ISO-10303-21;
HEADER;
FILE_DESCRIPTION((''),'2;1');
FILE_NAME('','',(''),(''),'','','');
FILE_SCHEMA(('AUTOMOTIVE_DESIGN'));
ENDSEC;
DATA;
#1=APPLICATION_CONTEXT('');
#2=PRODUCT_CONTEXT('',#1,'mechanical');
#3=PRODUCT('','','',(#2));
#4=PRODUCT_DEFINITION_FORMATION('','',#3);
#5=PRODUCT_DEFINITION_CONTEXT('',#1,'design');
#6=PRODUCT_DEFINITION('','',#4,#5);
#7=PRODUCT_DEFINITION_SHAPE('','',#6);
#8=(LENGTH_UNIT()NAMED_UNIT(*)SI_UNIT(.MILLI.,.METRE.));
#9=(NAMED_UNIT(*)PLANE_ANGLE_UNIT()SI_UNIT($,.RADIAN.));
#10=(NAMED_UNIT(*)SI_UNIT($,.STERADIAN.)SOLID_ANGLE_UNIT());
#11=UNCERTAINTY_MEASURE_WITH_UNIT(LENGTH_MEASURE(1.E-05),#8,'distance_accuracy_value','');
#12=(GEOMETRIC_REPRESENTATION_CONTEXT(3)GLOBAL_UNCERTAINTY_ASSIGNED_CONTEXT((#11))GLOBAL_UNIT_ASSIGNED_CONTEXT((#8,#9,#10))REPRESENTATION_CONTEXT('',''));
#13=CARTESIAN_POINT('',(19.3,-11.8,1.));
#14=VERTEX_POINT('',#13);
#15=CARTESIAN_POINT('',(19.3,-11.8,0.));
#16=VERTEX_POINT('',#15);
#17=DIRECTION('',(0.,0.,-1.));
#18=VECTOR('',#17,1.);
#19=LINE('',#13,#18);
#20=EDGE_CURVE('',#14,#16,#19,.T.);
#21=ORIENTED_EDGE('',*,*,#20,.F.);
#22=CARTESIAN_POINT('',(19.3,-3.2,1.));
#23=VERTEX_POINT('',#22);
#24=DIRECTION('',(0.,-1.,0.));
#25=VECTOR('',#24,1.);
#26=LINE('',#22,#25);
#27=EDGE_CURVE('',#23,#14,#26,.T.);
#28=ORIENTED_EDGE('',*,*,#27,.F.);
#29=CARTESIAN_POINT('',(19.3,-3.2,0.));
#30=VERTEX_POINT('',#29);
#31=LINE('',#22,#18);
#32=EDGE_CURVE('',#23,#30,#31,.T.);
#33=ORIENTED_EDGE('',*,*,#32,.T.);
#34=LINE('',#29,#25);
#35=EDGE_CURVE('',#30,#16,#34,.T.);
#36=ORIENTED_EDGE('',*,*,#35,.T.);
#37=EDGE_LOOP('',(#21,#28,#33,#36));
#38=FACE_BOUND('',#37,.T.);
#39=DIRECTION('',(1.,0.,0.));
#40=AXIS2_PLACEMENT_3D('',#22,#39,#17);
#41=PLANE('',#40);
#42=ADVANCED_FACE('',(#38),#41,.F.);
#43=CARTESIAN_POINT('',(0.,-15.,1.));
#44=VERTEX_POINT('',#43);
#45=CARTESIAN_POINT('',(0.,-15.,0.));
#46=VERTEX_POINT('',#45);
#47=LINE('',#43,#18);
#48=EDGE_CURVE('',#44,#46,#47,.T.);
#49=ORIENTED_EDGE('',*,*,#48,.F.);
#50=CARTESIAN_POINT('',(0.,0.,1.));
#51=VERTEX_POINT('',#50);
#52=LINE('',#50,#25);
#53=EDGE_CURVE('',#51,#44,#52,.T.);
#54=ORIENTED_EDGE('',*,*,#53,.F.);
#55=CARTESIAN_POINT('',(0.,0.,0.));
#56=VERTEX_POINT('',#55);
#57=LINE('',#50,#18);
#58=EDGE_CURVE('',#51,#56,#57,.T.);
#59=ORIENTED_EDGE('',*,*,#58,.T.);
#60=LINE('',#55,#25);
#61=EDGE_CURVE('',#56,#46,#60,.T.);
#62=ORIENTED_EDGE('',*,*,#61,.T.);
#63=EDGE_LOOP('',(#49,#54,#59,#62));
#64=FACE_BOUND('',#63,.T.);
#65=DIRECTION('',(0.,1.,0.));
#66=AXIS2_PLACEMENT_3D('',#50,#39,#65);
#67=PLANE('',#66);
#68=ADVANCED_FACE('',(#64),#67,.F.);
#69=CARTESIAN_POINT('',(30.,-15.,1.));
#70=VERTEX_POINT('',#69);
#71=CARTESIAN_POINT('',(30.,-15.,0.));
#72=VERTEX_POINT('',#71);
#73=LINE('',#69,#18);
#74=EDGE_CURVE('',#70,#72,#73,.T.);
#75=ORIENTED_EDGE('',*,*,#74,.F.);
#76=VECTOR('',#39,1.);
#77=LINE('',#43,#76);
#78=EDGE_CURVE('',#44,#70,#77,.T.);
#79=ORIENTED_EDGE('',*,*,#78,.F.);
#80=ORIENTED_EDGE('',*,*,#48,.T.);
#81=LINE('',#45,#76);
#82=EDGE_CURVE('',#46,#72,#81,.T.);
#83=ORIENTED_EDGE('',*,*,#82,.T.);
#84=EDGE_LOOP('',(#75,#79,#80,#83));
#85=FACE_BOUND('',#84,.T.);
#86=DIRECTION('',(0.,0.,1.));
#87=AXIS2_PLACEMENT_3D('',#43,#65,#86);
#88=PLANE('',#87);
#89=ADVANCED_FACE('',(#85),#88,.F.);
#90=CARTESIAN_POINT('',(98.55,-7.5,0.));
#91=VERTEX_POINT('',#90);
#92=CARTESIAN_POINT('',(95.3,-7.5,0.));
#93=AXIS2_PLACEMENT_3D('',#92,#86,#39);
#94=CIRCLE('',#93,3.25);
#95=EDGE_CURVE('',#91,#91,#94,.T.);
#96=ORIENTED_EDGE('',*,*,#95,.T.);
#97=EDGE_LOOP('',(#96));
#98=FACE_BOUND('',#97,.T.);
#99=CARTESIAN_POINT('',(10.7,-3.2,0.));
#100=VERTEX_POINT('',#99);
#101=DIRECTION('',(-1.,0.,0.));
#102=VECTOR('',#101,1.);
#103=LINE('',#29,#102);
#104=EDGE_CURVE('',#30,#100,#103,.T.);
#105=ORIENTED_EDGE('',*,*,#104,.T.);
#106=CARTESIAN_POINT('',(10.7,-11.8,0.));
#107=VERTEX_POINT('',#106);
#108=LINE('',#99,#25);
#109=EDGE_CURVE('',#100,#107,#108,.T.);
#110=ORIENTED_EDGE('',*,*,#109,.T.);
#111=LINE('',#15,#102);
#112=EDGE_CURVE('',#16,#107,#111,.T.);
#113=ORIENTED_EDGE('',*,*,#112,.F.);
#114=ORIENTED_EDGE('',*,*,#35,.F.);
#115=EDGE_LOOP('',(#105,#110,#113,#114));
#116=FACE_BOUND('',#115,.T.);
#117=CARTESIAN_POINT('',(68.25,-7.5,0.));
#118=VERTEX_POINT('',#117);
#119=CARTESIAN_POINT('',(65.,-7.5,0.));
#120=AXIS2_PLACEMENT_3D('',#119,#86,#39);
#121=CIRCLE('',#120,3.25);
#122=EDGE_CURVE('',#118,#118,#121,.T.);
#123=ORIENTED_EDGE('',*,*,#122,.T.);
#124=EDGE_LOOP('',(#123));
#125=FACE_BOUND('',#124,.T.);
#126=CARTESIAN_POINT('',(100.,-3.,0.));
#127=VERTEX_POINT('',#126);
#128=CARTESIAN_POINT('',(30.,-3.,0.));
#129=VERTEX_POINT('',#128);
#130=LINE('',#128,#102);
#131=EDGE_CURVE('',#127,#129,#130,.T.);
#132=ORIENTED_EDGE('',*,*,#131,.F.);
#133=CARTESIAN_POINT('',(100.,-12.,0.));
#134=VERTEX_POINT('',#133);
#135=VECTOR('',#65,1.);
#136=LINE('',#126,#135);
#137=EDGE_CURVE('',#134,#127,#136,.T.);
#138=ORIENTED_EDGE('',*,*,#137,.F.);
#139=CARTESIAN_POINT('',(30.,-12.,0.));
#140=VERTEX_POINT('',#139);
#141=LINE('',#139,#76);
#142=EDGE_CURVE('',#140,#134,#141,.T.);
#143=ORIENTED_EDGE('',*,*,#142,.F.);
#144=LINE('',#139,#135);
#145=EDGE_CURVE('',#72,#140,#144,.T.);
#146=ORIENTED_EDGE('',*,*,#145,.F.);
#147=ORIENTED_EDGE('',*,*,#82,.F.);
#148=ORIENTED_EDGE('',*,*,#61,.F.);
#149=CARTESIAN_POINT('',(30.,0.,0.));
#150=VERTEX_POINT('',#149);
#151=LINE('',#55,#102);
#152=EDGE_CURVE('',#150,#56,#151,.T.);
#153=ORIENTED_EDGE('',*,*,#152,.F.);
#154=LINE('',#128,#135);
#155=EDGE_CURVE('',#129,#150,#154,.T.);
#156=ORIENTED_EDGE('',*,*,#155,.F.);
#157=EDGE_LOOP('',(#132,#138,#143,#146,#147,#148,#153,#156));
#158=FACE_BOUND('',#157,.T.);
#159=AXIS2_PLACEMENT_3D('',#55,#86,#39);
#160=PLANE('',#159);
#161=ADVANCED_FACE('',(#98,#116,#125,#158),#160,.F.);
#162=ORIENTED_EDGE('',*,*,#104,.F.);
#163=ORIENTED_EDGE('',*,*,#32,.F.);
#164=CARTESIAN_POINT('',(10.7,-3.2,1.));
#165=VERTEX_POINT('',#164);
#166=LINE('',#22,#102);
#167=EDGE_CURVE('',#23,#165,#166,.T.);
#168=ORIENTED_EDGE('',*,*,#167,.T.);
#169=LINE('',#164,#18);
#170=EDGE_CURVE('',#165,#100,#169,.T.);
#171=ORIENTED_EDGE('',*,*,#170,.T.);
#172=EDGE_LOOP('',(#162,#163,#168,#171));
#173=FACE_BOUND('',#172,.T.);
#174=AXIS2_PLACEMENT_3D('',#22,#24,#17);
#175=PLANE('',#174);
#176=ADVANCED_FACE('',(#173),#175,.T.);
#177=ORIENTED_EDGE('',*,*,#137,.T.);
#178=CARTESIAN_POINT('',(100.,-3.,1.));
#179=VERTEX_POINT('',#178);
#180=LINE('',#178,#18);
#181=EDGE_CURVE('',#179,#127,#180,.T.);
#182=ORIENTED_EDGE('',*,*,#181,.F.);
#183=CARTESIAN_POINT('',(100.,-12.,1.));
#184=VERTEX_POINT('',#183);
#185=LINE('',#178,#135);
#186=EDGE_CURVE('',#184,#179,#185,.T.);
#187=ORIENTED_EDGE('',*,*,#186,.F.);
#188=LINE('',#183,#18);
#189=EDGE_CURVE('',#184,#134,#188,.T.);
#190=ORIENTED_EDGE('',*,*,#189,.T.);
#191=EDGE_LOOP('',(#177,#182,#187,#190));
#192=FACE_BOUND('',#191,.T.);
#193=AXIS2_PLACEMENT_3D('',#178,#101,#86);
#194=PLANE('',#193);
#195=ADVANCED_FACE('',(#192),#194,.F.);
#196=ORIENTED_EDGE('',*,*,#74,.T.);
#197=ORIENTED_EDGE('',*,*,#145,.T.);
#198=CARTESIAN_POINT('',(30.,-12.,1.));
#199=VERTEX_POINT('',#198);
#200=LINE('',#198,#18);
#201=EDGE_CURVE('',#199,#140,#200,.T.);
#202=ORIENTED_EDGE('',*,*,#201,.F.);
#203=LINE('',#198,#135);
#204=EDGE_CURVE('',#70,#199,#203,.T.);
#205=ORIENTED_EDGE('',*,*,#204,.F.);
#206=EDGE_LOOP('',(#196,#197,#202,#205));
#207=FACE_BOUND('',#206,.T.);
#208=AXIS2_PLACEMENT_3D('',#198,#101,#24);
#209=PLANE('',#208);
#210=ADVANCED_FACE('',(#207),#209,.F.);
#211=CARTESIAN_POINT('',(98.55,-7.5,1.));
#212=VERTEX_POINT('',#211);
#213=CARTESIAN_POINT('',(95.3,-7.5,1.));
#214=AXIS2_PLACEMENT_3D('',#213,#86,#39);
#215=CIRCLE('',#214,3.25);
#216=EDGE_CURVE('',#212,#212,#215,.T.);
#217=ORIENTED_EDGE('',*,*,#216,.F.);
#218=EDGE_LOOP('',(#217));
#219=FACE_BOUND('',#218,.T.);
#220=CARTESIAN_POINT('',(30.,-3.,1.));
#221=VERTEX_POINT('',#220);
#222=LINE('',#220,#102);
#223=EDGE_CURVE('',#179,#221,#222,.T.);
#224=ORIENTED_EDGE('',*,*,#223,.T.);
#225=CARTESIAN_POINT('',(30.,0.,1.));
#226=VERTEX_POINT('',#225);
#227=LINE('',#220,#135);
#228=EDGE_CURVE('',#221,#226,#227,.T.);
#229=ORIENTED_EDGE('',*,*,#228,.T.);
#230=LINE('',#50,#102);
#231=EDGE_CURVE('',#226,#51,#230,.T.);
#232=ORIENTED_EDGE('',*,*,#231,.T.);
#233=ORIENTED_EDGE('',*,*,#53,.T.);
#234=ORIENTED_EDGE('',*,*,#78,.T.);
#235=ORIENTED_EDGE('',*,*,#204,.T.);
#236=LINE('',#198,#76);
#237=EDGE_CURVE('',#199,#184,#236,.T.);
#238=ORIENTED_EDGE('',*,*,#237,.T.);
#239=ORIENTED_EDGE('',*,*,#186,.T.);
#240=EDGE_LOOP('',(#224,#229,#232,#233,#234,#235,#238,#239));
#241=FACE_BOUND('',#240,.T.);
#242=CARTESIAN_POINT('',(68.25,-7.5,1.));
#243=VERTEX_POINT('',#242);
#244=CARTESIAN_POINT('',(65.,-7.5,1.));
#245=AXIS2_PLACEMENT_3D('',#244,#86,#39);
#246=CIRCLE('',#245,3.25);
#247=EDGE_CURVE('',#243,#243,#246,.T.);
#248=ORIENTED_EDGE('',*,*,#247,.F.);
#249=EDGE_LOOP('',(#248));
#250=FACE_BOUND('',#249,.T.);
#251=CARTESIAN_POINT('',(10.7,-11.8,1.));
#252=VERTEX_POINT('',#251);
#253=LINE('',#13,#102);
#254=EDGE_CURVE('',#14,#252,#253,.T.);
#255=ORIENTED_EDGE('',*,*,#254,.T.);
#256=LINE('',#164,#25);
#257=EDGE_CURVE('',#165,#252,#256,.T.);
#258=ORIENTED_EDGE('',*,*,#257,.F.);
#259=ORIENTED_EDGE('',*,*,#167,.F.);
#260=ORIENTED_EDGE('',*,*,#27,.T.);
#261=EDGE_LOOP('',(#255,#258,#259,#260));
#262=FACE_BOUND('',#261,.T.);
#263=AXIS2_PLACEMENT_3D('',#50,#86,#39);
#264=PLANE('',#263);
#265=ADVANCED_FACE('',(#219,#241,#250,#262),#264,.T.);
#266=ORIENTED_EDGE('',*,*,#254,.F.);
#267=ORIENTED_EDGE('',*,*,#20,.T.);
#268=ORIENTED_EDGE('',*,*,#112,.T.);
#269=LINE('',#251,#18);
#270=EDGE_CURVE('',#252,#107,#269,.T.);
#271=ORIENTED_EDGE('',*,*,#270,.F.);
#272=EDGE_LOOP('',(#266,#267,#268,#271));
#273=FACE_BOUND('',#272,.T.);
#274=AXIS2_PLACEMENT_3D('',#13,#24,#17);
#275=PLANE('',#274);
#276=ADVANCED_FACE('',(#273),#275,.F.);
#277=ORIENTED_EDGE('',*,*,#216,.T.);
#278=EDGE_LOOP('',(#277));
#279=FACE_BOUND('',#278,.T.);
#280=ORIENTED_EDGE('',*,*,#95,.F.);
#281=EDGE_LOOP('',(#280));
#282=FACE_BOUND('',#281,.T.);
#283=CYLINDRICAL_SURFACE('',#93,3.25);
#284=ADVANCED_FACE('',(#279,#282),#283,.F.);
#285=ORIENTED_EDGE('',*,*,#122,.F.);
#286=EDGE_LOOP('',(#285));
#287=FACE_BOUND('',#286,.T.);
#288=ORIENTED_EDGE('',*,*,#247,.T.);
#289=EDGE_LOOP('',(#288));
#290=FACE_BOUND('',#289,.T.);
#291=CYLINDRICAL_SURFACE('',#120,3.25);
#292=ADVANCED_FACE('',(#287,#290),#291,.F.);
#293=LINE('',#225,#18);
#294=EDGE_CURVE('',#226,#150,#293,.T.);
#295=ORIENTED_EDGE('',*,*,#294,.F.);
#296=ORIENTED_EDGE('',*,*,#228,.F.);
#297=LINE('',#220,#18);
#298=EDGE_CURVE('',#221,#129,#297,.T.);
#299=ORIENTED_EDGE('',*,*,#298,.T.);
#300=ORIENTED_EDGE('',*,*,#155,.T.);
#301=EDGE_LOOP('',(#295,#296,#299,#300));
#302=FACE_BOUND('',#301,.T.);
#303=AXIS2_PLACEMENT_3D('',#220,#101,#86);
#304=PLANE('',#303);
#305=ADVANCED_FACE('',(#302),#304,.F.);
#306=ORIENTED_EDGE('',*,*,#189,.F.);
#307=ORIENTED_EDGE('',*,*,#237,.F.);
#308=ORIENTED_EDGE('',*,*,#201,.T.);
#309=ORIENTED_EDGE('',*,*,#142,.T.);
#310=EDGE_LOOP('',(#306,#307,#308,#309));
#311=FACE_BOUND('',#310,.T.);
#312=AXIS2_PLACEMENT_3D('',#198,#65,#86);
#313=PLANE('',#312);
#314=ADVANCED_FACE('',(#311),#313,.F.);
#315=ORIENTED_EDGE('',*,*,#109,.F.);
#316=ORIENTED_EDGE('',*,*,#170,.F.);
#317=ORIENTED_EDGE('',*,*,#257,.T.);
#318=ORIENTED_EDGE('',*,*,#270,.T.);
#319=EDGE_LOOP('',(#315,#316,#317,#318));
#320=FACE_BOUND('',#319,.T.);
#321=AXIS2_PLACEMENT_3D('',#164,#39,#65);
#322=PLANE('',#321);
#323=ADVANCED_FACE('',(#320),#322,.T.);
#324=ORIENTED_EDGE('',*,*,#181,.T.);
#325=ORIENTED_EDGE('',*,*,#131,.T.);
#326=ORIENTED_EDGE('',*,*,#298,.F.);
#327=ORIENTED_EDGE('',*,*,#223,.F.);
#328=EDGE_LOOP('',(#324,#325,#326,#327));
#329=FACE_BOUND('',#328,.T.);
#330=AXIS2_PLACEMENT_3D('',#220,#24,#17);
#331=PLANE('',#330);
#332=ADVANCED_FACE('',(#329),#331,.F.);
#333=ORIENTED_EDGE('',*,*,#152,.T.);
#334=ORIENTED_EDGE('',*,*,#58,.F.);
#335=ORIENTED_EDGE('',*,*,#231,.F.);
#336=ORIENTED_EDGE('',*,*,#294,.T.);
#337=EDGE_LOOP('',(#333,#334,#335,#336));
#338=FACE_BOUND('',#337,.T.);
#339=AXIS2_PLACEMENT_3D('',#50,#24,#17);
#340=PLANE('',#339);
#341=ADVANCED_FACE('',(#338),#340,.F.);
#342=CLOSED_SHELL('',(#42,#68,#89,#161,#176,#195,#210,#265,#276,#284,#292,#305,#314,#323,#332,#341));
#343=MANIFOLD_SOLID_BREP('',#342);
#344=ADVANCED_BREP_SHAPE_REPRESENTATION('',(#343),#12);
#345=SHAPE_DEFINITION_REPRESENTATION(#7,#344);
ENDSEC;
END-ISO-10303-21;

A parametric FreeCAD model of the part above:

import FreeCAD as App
import Part
import Sketcher
from FreeCAD import Vector
Q = App.Units.Quantity

doc = App.newDocument("Part")
params = doc.addObject("Spreadsheet::Sheet", "Params")
for row, (alias, value) in enumerate([
    ("sketch1_width", "30 mm"),
    ("sketch1_width2", "70 mm"),
    ("sketch1_height", "3 mm"),
    ("sketch1_height2", "15 mm"),
    ("pad1_length", "1 mm"),
    ("sketch2_width", "8.6 mm"),
    ("sketch3_diameter", "6.5 mm"),
], start=1):
    params.set(f"A{row}", alias)
    params.set(f"B{row}", "=" + value)
    params.setAlias(f"B{row}", alias)

body = doc.addObject("PartDesign::Body", "Body")

sketch1 = doc.addObject("Sketcher::SketchObject", "Sketch")
body.addObject(sketch1)
sketch1.AttachmentSupport = (doc.XY_Plane, [""])
sketch1.MapMode = "FlatFace"
sketch1.addGeometry([
    Part.LineSegment(Vector(30, -3, 0), Vector(30, 0, 0)),
    Part.LineSegment(Vector(30, 0, 0), Vector(0, 0, 0)),
    Part.LineSegment(Vector(0, 0, 0), Vector(0, -15, 0)),
    Part.LineSegment(Vector(0, -15, 0), Vector(30, -15, 0)),
    Part.LineSegment(Vector(30, -15, 0), Vector(30, -12, 0)),
    Part.LineSegment(Vector(30, -12, 0), Vector(100, -12, 0)),
    Part.LineSegment(Vector(100, -12, 0), Vector(100, -3, 0)),
    Part.LineSegment(Vector(100, -3, 0), Vector(30, -3, 0)),
], False)
sketch1.addConstraint([
    Sketcher.Constraint("Coincident", 0, 2, 1, 1),
    Sketcher.Constraint("Coincident", 1, 2, 2, 1),
    Sketcher.Constraint("Coincident", 2, 2, 3, 1),
    Sketcher.Constraint("Coincident", 3, 2, 4, 1),
    Sketcher.Constraint("Coincident", 4, 2, 5, 1),
    Sketcher.Constraint("Coincident", 5, 2, 6, 1),
    Sketcher.Constraint("Coincident", 6, 2, 7, 1),
    Sketcher.Constraint("Coincident", 7, 2, 0, 1),
    Sketcher.Constraint("Vertical", 0),
    Sketcher.Constraint("Horizontal", 1),
    Sketcher.Constraint("Vertical", 2),
    Sketcher.Constraint("Horizontal", 3),
    Sketcher.Constraint("Vertical", 4),
    Sketcher.Constraint("Horizontal", 5),
    Sketcher.Constraint("Vertical", 6),
    Sketcher.Constraint("Horizontal", 7),
    Sketcher.Constraint("Coincident", 1, 2, -1, 1),
    Sketcher.Constraint("Vertical", 0, 2, 3, 2),
    Sketcher.Constraint("Equal", 0, 4),
    Sketcher.Constraint("DistanceX", 1, 2, 1, 1, Q("30 mm")),
    Sketcher.Constraint("DistanceX", 5, 1, 5, 2, Q("70 mm")),
    Sketcher.Constraint("DistanceY", 0, 1, 0, 2, Q("3 mm")),
    Sketcher.Constraint("DistanceY", 2, 2, 2, 1, Q("15 mm")),
])
sketch1.setExpression("Constraints[19]", "Params.sketch1_width")
sketch1.setExpression("Constraints[20]", "Params.sketch1_width2")
sketch1.setExpression("Constraints[21]", "Params.sketch1_height")
sketch1.setExpression("Constraints[22]", "Params.sketch1_height2")
pad1 = doc.addObject("PartDesign::Pad", "Pad")
body.addObject(pad1)
pad1.Profile = sketch1
pad1.setExpression("Length", "Params.pad1_length")

sketch2 = doc.addObject("Sketcher::SketchObject", "Sketch001")
body.addObject(sketch2)
sketch2.AttachmentSupport = (doc.XY_Plane, [""])
sketch2.MapMode = "FlatFace"
sketch2.addGeometry([
    Part.LineSegment(Vector(19.3, -3.2, 0), Vector(19.3, -11.8, 0)),
    Part.LineSegment(Vector(19.3, -11.8, 0), Vector(10.7, -11.8, 0)),
    Part.LineSegment(Vector(10.7, -11.8, 0), Vector(10.7, -3.2, 0)),
    Part.LineSegment(Vector(10.7, -3.2, 0), Vector(19.3, -3.2, 0)),
], False)
sketch2.addConstraint([
    Sketcher.Constraint("Coincident", 0, 2, 1, 1),
    Sketcher.Constraint("Coincident", 1, 2, 2, 1),
    Sketcher.Constraint("Coincident", 2, 2, 3, 1),
    Sketcher.Constraint("Coincident", 3, 2, 0, 1),
    Sketcher.Constraint("Vertical", 0),
    Sketcher.Constraint("Horizontal", 1),
    Sketcher.Constraint("Vertical", 2),
    Sketcher.Constraint("Horizontal", 3),
    Sketcher.Constraint("Equal", 3, 0),
    Sketcher.Constraint("DistanceX", 1, 2, 1, 1, Q("8.6 mm")),
    Sketcher.Constraint("DistanceX", -1, 1, 0, 2, Q("19.3 mm")),
    Sketcher.Constraint("DistanceY", 0, 2, -1, 1, Q("11.8 mm")),
])
sketch2.setExpression("Constraints[9]", "Params.sketch2_width")
pocket1 = doc.addObject("PartDesign::Pocket", "Pocket")
body.addObject(pocket1)
pocket1.Profile = sketch2
pocket1.Type = "ThroughAll"
pocket1.Reversed = True

sketch3 = doc.addObject("Sketcher::SketchObject", "Sketch002")
body.addObject(sketch3)
sketch3.AttachmentSupport = (doc.XY_Plane, [""])
sketch3.MapMode = "FlatFace"
sketch3.AttachmentOffset = App.Placement(Vector(0, 0, 1), App.Rotation())
sketch3.addGeometry([
    Part.Circle(Vector(65, -7.5, 0), Vector(0, 0, 1), 3.25),
    Part.Circle(Vector(95.3, -7.5, 0), Vector(0, 0, 1), 3.25),
], False)
sketch3.addConstraint([
    Sketcher.Constraint("Equal", 0, 1),
    Sketcher.Constraint("Horizontal", 0, 3, 1, 3),
    Sketcher.Constraint("Diameter", 0, Q("6.5 mm")),
    Sketcher.Constraint("DistanceX", -1, 1, 0, 3, Q("65 mm")),
    Sketcher.Constraint("DistanceY", 0, 3, -1, 1, Q("7.5 mm")),
    Sketcher.Constraint("DistanceX", -1, 1, 1, 3, Q("95.3 mm")),
])
sketch3.setExpression("Constraints[2]", "Params.sketch3_diameter")
pocket2 = doc.addObject("PartDesign::Pocket", "Pocket001")
body.addObject(pocket2)
pocket2.Profile = sketch3
pocket2.Type = "ThroughAll"
pocket2.Midplane = True

doc.recompute()
